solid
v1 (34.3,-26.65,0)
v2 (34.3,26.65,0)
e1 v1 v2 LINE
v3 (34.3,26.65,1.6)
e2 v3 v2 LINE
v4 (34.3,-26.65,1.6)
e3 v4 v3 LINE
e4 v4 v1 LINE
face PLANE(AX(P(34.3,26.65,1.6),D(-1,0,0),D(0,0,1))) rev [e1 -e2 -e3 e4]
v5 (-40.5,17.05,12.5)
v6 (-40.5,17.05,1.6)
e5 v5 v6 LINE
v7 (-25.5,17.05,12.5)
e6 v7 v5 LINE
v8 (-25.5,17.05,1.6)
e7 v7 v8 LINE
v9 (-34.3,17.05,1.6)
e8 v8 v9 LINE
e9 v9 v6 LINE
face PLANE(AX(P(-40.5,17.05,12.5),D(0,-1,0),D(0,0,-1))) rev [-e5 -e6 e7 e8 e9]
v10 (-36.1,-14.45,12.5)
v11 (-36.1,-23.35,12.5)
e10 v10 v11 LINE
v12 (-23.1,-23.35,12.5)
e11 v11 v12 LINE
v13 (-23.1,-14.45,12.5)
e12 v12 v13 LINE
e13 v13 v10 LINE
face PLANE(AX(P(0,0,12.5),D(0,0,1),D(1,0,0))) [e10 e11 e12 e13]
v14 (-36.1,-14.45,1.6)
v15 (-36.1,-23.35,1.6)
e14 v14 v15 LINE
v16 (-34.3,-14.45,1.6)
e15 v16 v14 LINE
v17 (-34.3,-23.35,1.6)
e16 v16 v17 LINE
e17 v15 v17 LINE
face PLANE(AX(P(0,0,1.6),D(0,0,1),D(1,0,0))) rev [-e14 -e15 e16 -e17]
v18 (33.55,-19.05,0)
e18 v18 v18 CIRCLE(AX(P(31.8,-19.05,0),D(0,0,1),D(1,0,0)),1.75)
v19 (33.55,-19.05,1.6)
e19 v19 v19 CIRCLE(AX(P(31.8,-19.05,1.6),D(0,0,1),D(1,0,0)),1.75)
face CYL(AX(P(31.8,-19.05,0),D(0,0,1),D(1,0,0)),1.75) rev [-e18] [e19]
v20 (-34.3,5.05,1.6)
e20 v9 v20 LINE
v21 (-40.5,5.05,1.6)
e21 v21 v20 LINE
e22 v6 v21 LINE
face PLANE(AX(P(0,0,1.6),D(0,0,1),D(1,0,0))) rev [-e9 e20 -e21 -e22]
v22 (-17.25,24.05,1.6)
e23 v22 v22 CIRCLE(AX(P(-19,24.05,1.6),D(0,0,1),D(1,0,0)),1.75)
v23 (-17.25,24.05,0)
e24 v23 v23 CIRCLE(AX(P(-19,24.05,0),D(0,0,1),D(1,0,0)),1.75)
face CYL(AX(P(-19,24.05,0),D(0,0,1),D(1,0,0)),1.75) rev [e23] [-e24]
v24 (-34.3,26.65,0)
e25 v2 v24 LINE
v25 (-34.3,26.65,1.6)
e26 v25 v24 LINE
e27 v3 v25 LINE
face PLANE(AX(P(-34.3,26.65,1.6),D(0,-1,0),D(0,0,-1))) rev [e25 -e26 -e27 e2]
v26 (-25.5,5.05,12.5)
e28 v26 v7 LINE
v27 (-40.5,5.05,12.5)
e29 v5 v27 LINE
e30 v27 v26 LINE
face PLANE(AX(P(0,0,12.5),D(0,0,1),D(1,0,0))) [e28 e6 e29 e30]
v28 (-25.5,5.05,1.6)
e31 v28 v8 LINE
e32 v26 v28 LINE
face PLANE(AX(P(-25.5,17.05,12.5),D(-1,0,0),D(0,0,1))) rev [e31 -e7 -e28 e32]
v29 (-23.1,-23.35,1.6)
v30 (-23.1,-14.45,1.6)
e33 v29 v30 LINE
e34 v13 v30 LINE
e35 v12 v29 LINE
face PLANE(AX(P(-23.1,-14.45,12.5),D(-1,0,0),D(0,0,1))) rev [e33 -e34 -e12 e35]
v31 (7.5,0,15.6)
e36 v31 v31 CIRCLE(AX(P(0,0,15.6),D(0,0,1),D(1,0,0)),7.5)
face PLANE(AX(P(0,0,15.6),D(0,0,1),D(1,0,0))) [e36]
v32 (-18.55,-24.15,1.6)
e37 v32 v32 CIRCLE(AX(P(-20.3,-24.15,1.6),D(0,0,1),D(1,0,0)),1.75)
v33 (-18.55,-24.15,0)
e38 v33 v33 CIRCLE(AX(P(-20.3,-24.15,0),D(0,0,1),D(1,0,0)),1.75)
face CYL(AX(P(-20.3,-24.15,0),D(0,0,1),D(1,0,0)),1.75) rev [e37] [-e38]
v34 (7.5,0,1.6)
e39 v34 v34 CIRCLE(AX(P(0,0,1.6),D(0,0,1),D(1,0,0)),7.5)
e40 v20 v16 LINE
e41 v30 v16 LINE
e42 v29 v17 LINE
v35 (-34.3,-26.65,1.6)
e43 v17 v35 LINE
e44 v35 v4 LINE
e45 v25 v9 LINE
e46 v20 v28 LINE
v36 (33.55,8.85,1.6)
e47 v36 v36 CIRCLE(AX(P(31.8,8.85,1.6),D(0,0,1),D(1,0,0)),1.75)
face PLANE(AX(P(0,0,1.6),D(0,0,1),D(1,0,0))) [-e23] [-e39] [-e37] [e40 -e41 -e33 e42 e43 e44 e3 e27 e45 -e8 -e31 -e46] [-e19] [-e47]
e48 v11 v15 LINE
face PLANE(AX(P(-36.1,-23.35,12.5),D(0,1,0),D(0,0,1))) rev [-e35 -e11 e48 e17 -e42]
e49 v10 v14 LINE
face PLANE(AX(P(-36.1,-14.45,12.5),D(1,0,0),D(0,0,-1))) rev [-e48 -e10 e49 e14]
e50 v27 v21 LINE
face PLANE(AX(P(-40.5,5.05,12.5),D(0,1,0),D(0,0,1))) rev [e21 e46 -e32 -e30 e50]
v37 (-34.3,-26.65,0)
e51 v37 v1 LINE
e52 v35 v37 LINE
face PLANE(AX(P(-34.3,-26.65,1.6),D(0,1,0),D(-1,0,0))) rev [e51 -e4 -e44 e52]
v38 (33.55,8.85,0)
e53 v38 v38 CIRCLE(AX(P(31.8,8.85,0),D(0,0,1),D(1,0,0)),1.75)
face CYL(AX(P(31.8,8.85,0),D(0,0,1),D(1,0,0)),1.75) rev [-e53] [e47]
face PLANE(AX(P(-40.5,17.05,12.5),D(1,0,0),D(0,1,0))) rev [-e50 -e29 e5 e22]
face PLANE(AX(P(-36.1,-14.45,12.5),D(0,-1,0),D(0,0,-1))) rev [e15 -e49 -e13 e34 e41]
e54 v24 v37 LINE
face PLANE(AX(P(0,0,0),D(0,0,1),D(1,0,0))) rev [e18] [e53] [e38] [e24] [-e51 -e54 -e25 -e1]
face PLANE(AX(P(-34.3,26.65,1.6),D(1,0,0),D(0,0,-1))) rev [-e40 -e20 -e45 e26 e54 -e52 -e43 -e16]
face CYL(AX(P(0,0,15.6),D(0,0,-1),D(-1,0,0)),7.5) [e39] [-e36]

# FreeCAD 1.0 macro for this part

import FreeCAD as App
import Part
import Sketcher
Q = App.Units.Quantity


def add_polygon(sketch, points):
    """Adds a closed chain of lines whose ends are joined by coincident constraints."""
    first, n = sketch.GeometryCount, len(points)
    for a, b in zip(points, points[1:] + points[:1]):
        sketch.addGeometry(Part.LineSegment(App.Vector(*a, 0), App.Vector(*b, 0)), False)
    for i in range(n):
        sketch.addConstraint(Sketcher.Constraint("Coincident", first + i, 2, first + (i + 1) % n, 1))

doc = App.newDocument("Part")
body = doc.addObject("PartDesign::Body", "Body")

sketch1 = doc.addObject("Sketcher::SketchObject", "Sketch")
body.addObject(sketch1)
sketch1.AttachmentSupport = (doc.XY_Plane, [""])
sketch1.MapMode = "FlatFace"
add_polygon(sketch1, [(-34, 27), (-34, -27), (34, -27), (34, 27)])
sketch1.addConstraint([
    Sketcher.Constraint("Vertical", 0),
    Sketcher.Constraint("Horizontal", 1),
    Sketcher.Constraint("Vertical", 2),
    Sketcher.Constraint("Horizontal", 3),
    Sketcher.Constraint("Symmetric", 0, 2, 2, 2, -1, 1),
    Sketcher.Constraint("DistanceX", 1, 1, 1, 2, Q("68.6 mm")),
    Sketcher.Constraint("DistanceY", 0, 2, 0, 1, Q("53.3 mm")),
])
pad1 = doc.addObject("PartDesign::Pad", "Pad")
body.addObject(pad1)
pad1.Profile = sketch1
pad1.Length = 1.6

sketch2 = doc.addObject("Sketcher::SketchObject", "Sketch001")
body.addObject(sketch2)
sketch2.AttachmentSupport = (doc.XY_Plane, [""])
sketch2.MapMode = "FlatFace"
sketch2.AttachmentOffset = App.Placement(App.Vector(0, 0, 1.6), App.Rotation())
add_polygon(sketch2, [(-40, 17), (-40, 5), (-26, 5), (-26, 17)])
add_polygon(sketch2, [(-36, -14), (-36, -23), (-23, -23), (-23, -14)])
sketch2.addConstraint([
    Sketcher.Constraint("Vertical", 0),
    Sketcher.Constraint("Horizontal", 1),
    Sketcher.Constraint("Vertical", 2),
    Sketcher.Constraint("Horizontal", 3),
    Sketcher.Constraint("Vertical", 4),
    Sketcher.Constraint("Horizontal", 5),
    Sketcher.Constraint("Vertical", 6),
    Sketcher.Constraint("Horizontal", 7),
    Sketcher.Constraint("DistanceX", 1, 1, 1, 2, Q("15 mm")),
    Sketcher.Constraint("DistanceX", 5, 1, 5, 2, Q("13 mm")),
    Sketcher.Constraint("DistanceY", 0, 2, 0, 1, Q("12 mm")),
    Sketcher.Constraint("DistanceY", 4, 2, 4, 1, Q("8.9 mm")),
    Sketcher.Constraint("DistanceX", 0, 2, -1, 1, Q("40.5 mm")),
    Sketcher.Constraint("DistanceX", 4, 2, -1, 1, Q("36.1 mm")),
    Sketcher.Constraint("DistanceY", 4, 2, 0, 2, Q("28.4 mm")),
    Sketcher.Constraint("DistanceY", -1, 1, 0, 2, Q("5.05 mm")),
])
pad2 = doc.addObject("PartDesign::Pad", "Pad001")
body.addObject(pad2)
pad2.Profile = sketch2
pad2.Length = 10.9

sketch3 = doc.addObject("Sketcher::SketchObject", "Sketch002")
body.addObject(sketch3)
sketch3.AttachmentSupport = (doc.XY_Plane, [""])
sketch3.MapMode = "FlatFace"
sketch3.AttachmentOffset = App.Placement(App.Vector(0, 0, 1.6), App.Rotation())
sketch3.addGeometry([
    Part.Circle(App.Vector(-19, 24.1, 0), App.Vector(0, 0, 1), 1.8),
    Part.Circle(App.Vector(-20.3, -24.1, 0), App.Vector(0, 0, 1), 1.8),
    Part.Circle(App.Vector(31.8, -19.1, 0), App.Vector(0, 0, 1), 1.8),
    Part.Circle(App.Vector(31.8, 8.8, 0), App.Vector(0, 0, 1), 1.8),
], False)
sketch3.addConstraint([
    Sketcher.Constraint("Equal", 0, 1),
    Sketcher.Constraint("Equal", 1, 2),
    Sketcher.Constraint("Equal", 2, 3),
    Sketcher.Constraint("Vertical", 2, 3, 3, 3),
    Sketcher.Constraint("Diameter", 0, Q("3.5 mm")),
    Sketcher.Constraint("DistanceX", 0, 3, -1, 1, Q("19 mm")),
    Sketcher.Constraint("DistanceY", 1, 3, 3, 3, Q("33 mm")),
    Sketcher.Constraint("DistanceX", 1, 3, -1, 1, Q("20.3 mm")),
    Sketcher.Constraint("DistanceX", -1, 1, 2, 3, Q("31.8 mm")),
    Sketcher.Constraint("DistanceY", 1, 3, 0, 3, Q("48.2 mm")),
    Sketcher.Constraint("DistanceY", 1, 3, 2, 3, Q("5.1 mm")),
    Sketcher.Constraint("DistanceY", -1, 1, 0, 3, Q("24.05 mm")),
])
pocket1 = doc.addObject("PartDesign::Pocket", "Pocket")
body.addObject(pocket1)
pocket1.Profile = sketch3
pocket1.Type = "ThroughAll"

sketch4 = doc.addObject("Sketcher::SketchObject", "Sketch003")
body.addObject(sketch4)
sketch4.AttachmentSupport = (doc.XY_Plane, [""])
sketch4.MapMode = "FlatFace"
sketch4.AttachmentOffset = App.Placement(App.Vector(0, 0, 1.6), App.Rotation())
sketch4.addGeometry(Part.Circle(App.Vector(0, 0, 0), App.Vector(0, 0, 1), 8), False)
sketch4.addConstraint([
    Sketcher.Constraint("Coincident", 0, 3, -1, 1),
    Sketcher.Constraint("Diameter", 0, Q("15 mm")),
])
pad3 = doc.addObject("PartDesign::Pad", "Pad002")
body.addObject(pad3)
pad3.Profile = sketch4
pad3.Length = 14

doc.recompute()
